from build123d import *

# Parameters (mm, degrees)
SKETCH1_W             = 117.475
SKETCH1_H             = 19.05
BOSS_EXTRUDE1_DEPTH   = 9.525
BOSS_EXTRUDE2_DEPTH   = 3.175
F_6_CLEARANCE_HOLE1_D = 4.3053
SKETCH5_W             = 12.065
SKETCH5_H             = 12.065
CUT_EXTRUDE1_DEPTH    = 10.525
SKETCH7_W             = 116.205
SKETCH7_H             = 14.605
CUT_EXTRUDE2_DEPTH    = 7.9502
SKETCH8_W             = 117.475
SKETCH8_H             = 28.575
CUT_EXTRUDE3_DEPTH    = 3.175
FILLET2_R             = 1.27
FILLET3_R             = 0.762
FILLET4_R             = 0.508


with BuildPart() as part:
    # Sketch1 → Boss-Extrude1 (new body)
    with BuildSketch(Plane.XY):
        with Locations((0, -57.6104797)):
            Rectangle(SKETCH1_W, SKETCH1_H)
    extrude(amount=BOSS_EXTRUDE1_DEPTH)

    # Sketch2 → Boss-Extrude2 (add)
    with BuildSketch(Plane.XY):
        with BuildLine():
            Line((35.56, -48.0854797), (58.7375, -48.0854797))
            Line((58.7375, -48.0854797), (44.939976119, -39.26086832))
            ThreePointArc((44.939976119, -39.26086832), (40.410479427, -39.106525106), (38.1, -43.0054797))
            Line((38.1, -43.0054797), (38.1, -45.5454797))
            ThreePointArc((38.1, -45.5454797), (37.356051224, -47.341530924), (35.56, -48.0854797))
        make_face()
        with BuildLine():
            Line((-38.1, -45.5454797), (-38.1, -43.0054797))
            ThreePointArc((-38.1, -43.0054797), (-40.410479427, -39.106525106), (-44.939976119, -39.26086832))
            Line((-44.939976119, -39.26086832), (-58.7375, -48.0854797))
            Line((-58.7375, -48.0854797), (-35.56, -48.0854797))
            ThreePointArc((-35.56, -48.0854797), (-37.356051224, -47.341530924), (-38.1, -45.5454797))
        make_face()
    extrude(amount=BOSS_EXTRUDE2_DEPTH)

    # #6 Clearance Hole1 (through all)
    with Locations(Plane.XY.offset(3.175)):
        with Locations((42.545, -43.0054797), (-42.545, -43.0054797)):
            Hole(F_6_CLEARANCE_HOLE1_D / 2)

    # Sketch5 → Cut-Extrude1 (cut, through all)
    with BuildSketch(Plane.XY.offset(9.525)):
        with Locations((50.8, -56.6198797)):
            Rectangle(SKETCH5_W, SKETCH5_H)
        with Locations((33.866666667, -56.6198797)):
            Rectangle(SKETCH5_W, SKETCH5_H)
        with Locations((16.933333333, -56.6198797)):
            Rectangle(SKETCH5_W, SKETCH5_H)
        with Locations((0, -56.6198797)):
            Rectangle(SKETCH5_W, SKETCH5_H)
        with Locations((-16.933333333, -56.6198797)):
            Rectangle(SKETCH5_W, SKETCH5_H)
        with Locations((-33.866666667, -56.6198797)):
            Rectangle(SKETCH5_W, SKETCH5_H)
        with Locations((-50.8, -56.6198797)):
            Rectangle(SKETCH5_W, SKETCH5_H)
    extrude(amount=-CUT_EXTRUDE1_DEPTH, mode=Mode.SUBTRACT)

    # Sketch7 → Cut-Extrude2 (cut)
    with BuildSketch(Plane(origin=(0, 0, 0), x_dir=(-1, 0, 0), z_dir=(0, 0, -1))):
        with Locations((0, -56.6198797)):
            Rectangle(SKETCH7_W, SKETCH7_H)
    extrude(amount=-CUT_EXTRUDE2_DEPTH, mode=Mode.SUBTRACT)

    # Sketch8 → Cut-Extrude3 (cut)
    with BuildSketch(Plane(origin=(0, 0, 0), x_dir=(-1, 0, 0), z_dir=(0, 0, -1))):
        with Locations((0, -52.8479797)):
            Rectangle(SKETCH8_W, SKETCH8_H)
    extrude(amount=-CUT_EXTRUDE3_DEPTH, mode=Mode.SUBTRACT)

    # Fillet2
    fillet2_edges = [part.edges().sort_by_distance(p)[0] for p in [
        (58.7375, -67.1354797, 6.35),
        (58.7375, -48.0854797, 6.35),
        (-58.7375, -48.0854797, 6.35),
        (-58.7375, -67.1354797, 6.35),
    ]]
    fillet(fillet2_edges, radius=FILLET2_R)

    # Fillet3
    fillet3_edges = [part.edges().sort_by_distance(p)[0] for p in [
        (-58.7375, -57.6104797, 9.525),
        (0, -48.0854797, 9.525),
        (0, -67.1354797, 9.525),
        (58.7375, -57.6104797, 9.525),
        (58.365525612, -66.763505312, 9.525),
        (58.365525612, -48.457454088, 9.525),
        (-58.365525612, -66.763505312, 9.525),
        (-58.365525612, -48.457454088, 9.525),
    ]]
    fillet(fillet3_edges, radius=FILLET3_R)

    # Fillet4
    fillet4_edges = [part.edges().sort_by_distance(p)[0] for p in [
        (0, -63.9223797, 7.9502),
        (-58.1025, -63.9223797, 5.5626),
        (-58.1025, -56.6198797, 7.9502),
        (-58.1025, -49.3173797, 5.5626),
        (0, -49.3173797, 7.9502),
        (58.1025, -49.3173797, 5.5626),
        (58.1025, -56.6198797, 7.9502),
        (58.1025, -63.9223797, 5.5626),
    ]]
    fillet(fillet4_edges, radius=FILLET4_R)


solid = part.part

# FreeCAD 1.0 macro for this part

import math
import FreeCAD as App
import Part
import Sketcher
Q = App.Units.Quantity


def edges_at(feature, points):
    """Names of the edges that pass closest to the given points."""
    edges = feature.Shape.Edges
    near = lambda p: min(range(len(edges)), key=lambda i: edges[i].distToShape(Part.Vertex(*p))[0])
    return sorted({f"Edge{near(p) + 1}" for p in points})

doc = App.newDocument("Part")
body = doc.addObject("PartDesign::Body", "Body")

# Sketch on XY plane
sketch1 = body.newObject("Sketcher::SketchObject", "Sketch")
sketch1.AttachmentSupport = (doc.getObject("XY_Plane"), [""])
sketch1.MapMode = "FlatFace"
sketch1.addGeometry([
    Part.LineSegment(App.Vector(-58.7375, -48.08548, 0), App.Vector(-58.7375, -67.13548, 0)),
    Part.LineSegment(App.Vector(-58.7375, -67.13548, 0), App.Vector(58.7375, -67.13548, 0)),
    Part.LineSegment(App.Vector(58.7375, -67.13548, 0), App.Vector(58.7375, -48.08548, 0)),
    Part.LineSegment(App.Vector(58.7375, -48.08548, 0), App.Vector(-58.7375, -48.08548, 0)),
], False)
sketch1.addConstraint([
    Sketcher.Constraint("Coincident", 0, 2, 1, 1),
    Sketcher.Constraint("Coincident", 1, 2, 2, 1),
    Sketcher.Constraint("Coincident", 2, 2, 3, 1),
    Sketcher.Constraint("Coincident", 3, 2, 0, 1),
    Sketcher.Constraint("Vertical", 0),
    Sketcher.Constraint("Horizontal", 1),
    Sketcher.Constraint("Vertical", 2),
    Sketcher.Constraint("Horizontal", 3),
    Sketcher.Constraint("DistanceY", 0, 2, 0, 1, Q("0.75 in")),
    Sketcher.Constraint("DistanceX", 1, 1, 1, 2, Q("4.625 in")),
    Sketcher.Constraint("DistanceX", 0, 2, -1, 1, Q("2.3125 in")),
    Sketcher.Constraint("DistanceY", 0, 2, -1, 1, 67.13548),
])
pad1 = body.newObject("PartDesign::Pad", "Pad")
pad1.Profile = sketch1
pad1.Length = Q("0.375 in")

# Sketch on XY plane
sketch2 = body.newObject("Sketcher::SketchObject", "Sketch001")
sketch2.AttachmentSupport = (doc.getObject("XY_Plane"), [""])
sketch2.MapMode = "FlatFace"
sketch2.addGeometry([
    Part.LineSegment(App.Vector(35.56, -48.08548, 0), App.Vector(58.7375, -48.08548, 0)),  # 0
    Part.LineSegment(App.Vector(58.7375, -48.08548, 0), App.Vector(44.939976, -39.260868, 0)),  # 1
    Part.ArcOfCircle(Part.Circle(App.Vector(42.545, -43.00548, 0), App.Vector(0, 0, 1), 4.445), math.radians(57.397858), math.radians(180)),  # 2
    Part.LineSegment(App.Vector(38.1, -43.00548, 0), App.Vector(38.1, -45.54548, 0)),  # 3
    Part.ArcOfCircle(Part.Circle(App.Vector(35.56, -45.54548, 0), App.Vector(0, 0, 1), 2.54), math.radians(-90), math.radians(0)),  # 4
    Part.LineSegment(App.Vector(-38.1, -45.54548, 0), App.Vector(-38.1, -43.00548, 0)),  # 5
    Part.ArcOfCircle(Part.Circle(App.Vector(-42.545, -43.00548, 0), App.Vector(0, 0, 1), 4.445), math.radians(0), math.radians(122.602142)),  # 6
    Part.LineSegment(App.Vector(-44.939976, -39.260868, 0), App.Vector(-58.7375, -48.08548, 0)),  # 7
    Part.LineSegment(App.Vector(-58.7375, -48.08548, 0), App.Vector(-35.56, -48.08548, 0)),  # 8
    Part.ArcOfCircle(Part.Circle(App.Vector(-35.56, -45.54548, 0), App.Vector(0, 0, 1), 2.54), math.radians(-180), math.radians(-90)),  # 9
], False)
sketch2.addConstraint([
    Sketcher.Constraint("Coincident", 0, 2, 1, 1),
    Sketcher.Constraint("Tangent", 1, 2, 2, 1),
    Sketcher.Constraint("Tangent", 2, 2, 3, 1),
    Sketcher.Constraint("Tangent", 3, 2, 4, 2),
    Sketcher.Constraint("Tangent", 4, 1, 0, 1),
    Sketcher.Constraint("Tangent", 5, 2, 6, 1),
    Sketcher.Constraint("Tangent", 6, 2, 7, 1),
    Sketcher.Constraint("Coincident", 7, 2, 8, 1),
    Sketcher.Constraint("Tangent", 8, 2, 9, 2),
    Sketcher.Constraint("Tangent", 9, 1, 5, 1),
    Sketcher.Constraint("Horizontal", 0),
    Sketcher.Constraint("Vertical", 3),
    Sketcher.Constraint("Vertical", 5),
    Sketcher.Constraint("Horizontal", 8),
    Sketcher.Constraint("Equal", 2, 6),
    Sketcher.Constraint("Equal", 4, 9),
    Sketcher.Constraint("Symmetric", 2, 3, 6, 3, -2),
    Sketcher.Constraint("Symmetric", 0, 2, 7, 2, -2),
    Sketcher.Constraint("Radius", 4, Q("0.1 in")),
    Sketcher.Constraint("DistanceY", 3, 2, 3, 1, Q("0.1 in")),
    Sketcher.Constraint("Radius", 2, Q("0.175 in")),
    Sketcher.Constraint("DistanceX", 5, 2, 2, 2, Q("3 in")),
    Sketcher.Constraint("DistanceX", 0, 1, 0, 2, Q("0.9125 in")),
    Sketcher.Constraint("DistanceY", 2, 3, -1, 1, 43.00548),
])
pad2 = body.newObject("PartDesign::Pad", "Pad001")
pad2.Profile = sketch2
pad2.Length = Q("0.125 in")

# Sketch on XY plane
sketch3 = body.newObject("Sketcher::SketchObject", "Sketch002")
sketch3.AttachmentSupport = (doc.getObject("XY_Plane"), [""])
sketch3.MapMode = "FlatFace"
sketch3.AttachmentOffset = App.Placement(App.Vector(0, 0, 0.125 * 25.4), App.Rotation())
sketch3.addGeometry([
    Part.Circle(App.Vector(42.545, -43.00548, 0), App.Vector(0, 0, 1), 2.15265),
    Part.Circle(App.Vector(-42.545, -43.00548, 0), App.Vector(0, 0, 1), 2.15265),
], False)
sketch3.addConstraint([
    Sketcher.Constraint("Equal", 0, 1),
    Sketcher.Constraint("Symmetric", 0, 3, 1, 3, -2),
    Sketcher.Constraint("Diameter", 0, Q("0.1695 in")),
    Sketcher.Constraint("DistanceX", 1, 3, 0, 3, Q("3.35 in")),
    Sketcher.Constraint("DistanceY", 0, 3, -1, 1, 43.00548),
])
doc.recompute()
hole = body.newObject("PartDesign::Hole", "Hole")
hole.Profile = sketch3
hole.ThreadType = "None"
hole.Diameter = Q("0.1695 in")
hole.DepthType = "ThroughAll"

# Sketch on XY plane
sketch4 = body.newObject("Sketcher::SketchObject", "Sketch003")
sketch4.AttachmentSupport = (doc.getObject("XY_Plane"), [""])
sketch4.MapMode = "FlatFace"
sketch4.AttachmentOffset = App.Placement(App.Vector(0, 0, 0.375 * 25.4), App.Rotation())
sketch4.addGeometry([
    Part.LineSegment(App.Vector(44.7675, -50.58738, 0), App.Vector(44.7675, -62.65238, 0)),  # 0
    Part.LineSegment(App.Vector(44.7675, -62.65238, 0), App.Vector(56.8325, -62.65238, 0)),  # 1
    Part.LineSegment(App.Vector(56.8325, -62.65238, 0), App.Vector(56.8325, -50.58738, 0)),  # 2
    Part.LineSegment(App.Vector(56.8325, -50.58738, 0), App.Vector(44.7675, -50.58738, 0)),  # 3
    Part.LineSegment(App.Vector(27.834167, -50.58738, 0), App.Vector(27.834167, -62.65238, 0)),  # 4
    Part.LineSegment(App.Vector(27.834167, -62.65238, 0), App.Vector(39.899167, -62.65238, 0)),  # 5
    Part.LineSegment(App.Vector(39.899167, -62.65238, 0), App.Vector(39.899167, -50.58738, 0)),  # 6
    Part.LineSegment(App.Vector(39.899167, -50.58738, 0), App.Vector(27.834167, -50.58738, 0)),  # 7
    Part.LineSegment(App.Vector(10.900833, -50.58738, 0), App.Vector(10.900833, -62.65238, 0)),  # 8
    Part.LineSegment(App.Vector(10.900833, -62.65238, 0), App.Vector(22.965833, -62.65238, 0)),  # 9
    Part.LineSegment(App.Vector(22.965833, -62.65238, 0), App.Vector(22.965833, -50.58738, 0)),  # 10
    Part.LineSegment(App.Vector(22.965833, -50.58738, 0), App.Vector(10.900833, -50.58738, 0)),  # 11
    Part.LineSegment(App.Vector(-6.0325, -50.58738, 0), App.Vector(-6.0325, -62.65238, 0)),  # 12
    Part.LineSegment(App.Vector(-6.0325, -62.65238, 0), App.Vector(6.0325, -62.65238, 0)),  # 13
    Part.LineSegment(App.Vector(6.0325, -62.65238, 0), App.Vector(6.0325, -50.58738, 0)),  # 14
    Part.LineSegment(App.Vector(6.0325, -50.58738, 0), App.Vector(-6.0325, -50.58738, 0)),  # 15
    Part.LineSegment(App.Vector(-22.965833, -50.58738, 0), App.Vector(-22.965833, -62.65238, 0)),  # 16
    Part.LineSegment(App.Vector(-22.965833, -62.65238, 0), App.Vector(-10.900833, -62.65238, 0)),  # 17
    Part.LineSegment(App.Vector(-10.900833, -62.65238, 0), App.Vector(-10.900833, -50.58738, 0)),  # 18
    Part.LineSegment(App.Vector(-10.900833, -50.58738, 0), App.Vector(-22.965833, -50.58738, 0)),  # 19
    Part.LineSegment(App.Vector(-39.899167, -50.58738, 0), App.Vector(-39.899167, -62.65238, 0)),  # 20
    Part.LineSegment(App.Vector(-39.899167, -62.65238, 0), App.Vector(-27.834167, -62.65238, 0)),  # 21
    Part.LineSegment(App.Vector(-27.834167, -62.65238, 0), App.Vector(-27.834167, -50.58738, 0)),  # 22
    Part.LineSegment(App.Vector(-27.834167, -50.58738, 0), App.Vector(-39.899167, -50.58738, 0)),  # 23
    Part.LineSegment(App.Vector(-56.8325, -50.58738, 0), App.Vector(-56.8325, -62.65238, 0)),  # 24
    Part.LineSegment(App.Vector(-56.8325, -62.65238, 0), App.Vector(-44.7675, -62.65238, 0)),  # 25
    Part.LineSegment(App.Vector(-44.7675, -62.65238, 0), App.Vector(-44.7675, -50.58738, 0)),  # 26
    Part.LineSegment(App.Vector(-44.7675, -50.58738, 0), App.Vector(-56.8325, -50.58738, 0)),  # 27
], False)
sketch4.addConstraint([
    Sketcher.Constraint("Coincident", 0, 2, 1, 1),
    Sketcher.Constraint("Coincident", 1, 2, 2, 1),
    Sketcher.Constraint("Coincident", 2, 2, 3, 1),
    Sketcher.Constraint("Coincident", 3, 2, 0, 1),
    Sketcher.Constraint("Coincident", 4, 2, 5, 1),
    Sketcher.Constraint("Coincident", 5, 2, 6, 1),
    Sketcher.Constraint("Coincident", 6, 2, 7, 1),
    Sketcher.Constraint("Coincident", 7, 2, 4, 1),
    Sketcher.Constraint("Coincident", 8, 2, 9, 1),
    Sketcher.Constraint("Coincident", 9, 2, 10, 1),
    Sketcher.Constraint("Coincident", 10, 2, 11, 1),
    Sketcher.Constraint("Coincident", 11, 2, 8, 1),
    Sketcher.Constraint("Coincident", 12, 2, 13, 1),
    Sketcher.Constraint("Coincident", 13, 2, 14, 1),
    Sketcher.Constraint("Coincident", 14, 2, 15, 1),
    Sketcher.Constraint("Coincident", 15, 2, 12, 1),
    Sketcher.Constraint("Coincident", 16, 2, 17, 1),
    Sketcher.Constraint("Coincident", 17, 2, 18, 1),
    Sketcher.Constraint("Coincident", 18, 2, 19, 1),
    Sketcher.Constraint("Coincident", 19, 2, 16, 1),
    Sketcher.Constraint("Coincident", 20, 2, 21, 1),
    Sketcher.Constraint("Coincident", 21, 2, 22, 1),
    Sketcher.Constraint("Coincident", 22, 2, 23, 1),
    Sketcher.Constraint("Coincident", 23, 2, 20, 1),
    Sketcher.Constraint("Coincident", 24, 2, 25, 1),
    Sketcher.Constraint("Coincident", 25, 2, 26, 1),
    Sketcher.Constraint("Coincident", 26, 2, 27, 1),
    Sketcher.Constraint("Coincident", 27, 2, 24, 1),
    Sketcher.Constraint("Vertical", 0),
    Sketcher.Constraint("Horizontal", 1),
    Sketcher.Constraint("Vertical", 2),
    Sketcher.Constraint("Horizontal", 3),
    Sketcher.Constraint("Vertical", 4),
    Sketcher.Constraint("Horizontal", 5),
    Sketcher.Constraint("Vertical", 6),
    Sketcher.Constraint("Horizontal", 7),
    Sketcher.Constraint("Vertical", 8),
    Sketcher.Constraint("Horizontal", 9),
    Sketcher.Constraint("Vertical", 10),
    Sketcher.Constraint("Horizontal", 11),
    Sketcher.Constraint("Vertical", 12),
    Sketcher.Constraint("Horizontal", 13),
    Sketcher.Constraint("Vertical", 14),
    Sketcher.Constraint("Horizontal", 15),
    Sketcher.Constraint("Vertical", 16),
    Sketcher.Constraint("Horizontal", 17),
    Sketcher.Constraint("Vertical", 18),
    Sketcher.Constraint("Horizontal", 19),
    Sketcher.Constraint("Vertical", 20),
    Sketcher.Constraint("Horizontal", 21),
    Sketcher.Constraint("Vertical", 22),
    Sketcher.Constraint("Horizontal", 23),
    Sketcher.Constraint("Vertical", 24),
    Sketcher.Constraint("Horizontal", 25),
    Sketcher.Constraint("Vertical", 26),
    Sketcher.Constraint("Horizontal", 27),
    Sketcher.Constraint("Symmetric", 9, 2, 16, 2, -2),
    Sketcher.Constraint("Symmetric", 11, 2, 18, 2, -2),
    Sketcher.Constraint("Symmetric", 5, 2, 20, 2, -2),
    Sketcher.Constraint("Symmetric", 7, 2, 22, 2, -2),
    Sketcher.Constraint("Symmetric", 1, 2, 24, 2, -2),
    Sketcher.Constraint("Symmetric", 3, 2, 26, 2, -2),
    Sketcher.Constraint("Horizontal", 1, 2, 4, 2),
    Sketcher.Constraint("Horizontal", 3, 2, 6, 2),
    Sketcher.Constraint("Horizontal", 5, 2, 8, 2),
    Sketcher.Constraint("Horizontal", 7, 2, 10, 2),
    Sketcher.Constraint("Horizontal", 9, 2, 12, 2),
    Sketcher.Constraint("Horizontal", 11, 2, 14, 2),
    Sketcher.Constraint("Equal", 3, 5),
    Sketcher.Constraint("Equal", 7, 9),
    Sketcher.Constraint("Equal", 11, 13),
    Sketcher.Constraint("Equal", 27, 0),
    Sketcher.Constraint("DistanceX", 1, 1, 1, 2, Q("0.475 in")),
    Sketcher.Constraint("DistanceX", -1, 1, 0, 2, Q("1.7625 in")),
    Sketcher.Constraint("DistanceX", 12, 2, -1, 1, Q("0.2375 in")),
    Sketcher.Constraint("DistanceY", 0, 2, -1, 1, 62.65238),
    Sketcher.Constraint("DistanceX", -1, 1, 4, 2, 27.834167),
    Sketcher.Constraint("DistanceX", -1, 1, 8, 2, 10.900833),
])
pocket1 = body.newObject("PartDesign::Pocket", "Pocket")
pocket1.Profile = sketch4
pocket1.Type = "ThroughAll"

# Sketch on XY plane
sketch5 = body.newObject("Sketcher::SketchObject", "Sketch004")
sketch5.AttachmentSupport = (doc.getObject("XY_Plane"), [""])
sketch5.MapMode = "FlatFace"
sketch5.addGeometry([
    Part.LineSegment(App.Vector(58.1025, -49.31738, 0), App.Vector(58.1025, -63.92238, 0)),
    Part.LineSegment(App.Vector(58.1025, -63.92238, 0), App.Vector(-58.1025, -63.92238, 0)),
    Part.LineSegment(App.Vector(-58.1025, -63.92238, 0), App.Vector(-58.1025, -49.31738, 0)),
    Part.LineSegment(App.Vector(-58.1025, -49.31738, 0), App.Vector(58.1025, -49.31738, 0)),
], False)
sketch5.addConstraint([
    Sketcher.Constraint("Coincident", 0, 2, 1, 1),
    Sketcher.Constraint("Coincident", 1, 2, 2, 1),
    Sketcher.Constraint("Coincident", 2, 2, 3, 1),
    Sketcher.Constraint("Coincident", 3, 2, 0, 1),
    Sketcher.Constraint("Vertical", 0),
    Sketcher.Constraint("Horizontal", 1),
    Sketcher.Constraint("Vertical", 2),
    Sketcher.Constraint("Horizontal", 3),
    Sketcher.Constraint("DistanceX", 1, 2, 1, 1, Q("4.575 in")),
    Sketcher.Constraint("DistanceY", 0, 2, 0, 1, Q("0.575 in")),
    Sketcher.Constraint("DistanceX", -1, 1, 0, 2, Q("2.2875 in")),
    Sketcher.Constraint("DistanceY", 0, 2, -1, 1, 63.92238),
])
pocket2 = body.newObject("PartDesign::Pocket", "Pocket001")
pocket2.Profile = sketch5
pocket2.Length = Q("0.313 in")
pocket2.Reversed = True

# Sketch on XY plane
sketch6 = body.newObject("Sketcher::SketchObject", "Sketch005")
sketch6.AttachmentSupport = (doc.getObject("XY_Plane"), [""])
sketch6.MapMode = "FlatFace"
sketch6.addGeometry([
    Part.LineSegment(App.Vector(58.7375, -38.56048, 0), App.Vector(58.7375, -67.13548, 0)),
    Part.LineSegment(App.Vector(58.7375, -67.13548, 0), App.Vector(-58.7375, -67.13548, 0)),
    Part.LineSegment(App.Vector(-58.7375, -67.13548, 0), App.Vector(-58.7375, -38.56048, 0)),
    Part.LineSegment(App.Vector(-58.7375, -38.56048, 0), App.Vector(58.7375, -38.56048, 0)),
], False)
sketch6.addConstraint([
    Sketcher.Constraint("Coincident", 0, 2, 1, 1),
    Sketcher.Constraint("Coincident", 1, 2, 2, 1),
    Sketcher.Constraint("Coincident", 2, 2, 3, 1),
    Sketcher.Constraint("Coincident", 3, 2, 0, 1),
    Sketcher.Constraint("Vertical", 0),
    Sketcher.Constraint("Horizontal", 1),
    Sketcher.Constraint("Vertical", 2),
    Sketcher.Constraint("Horizontal", 3),
    Sketcher.Constraint("DistanceX", 1, 2, 1, 1, Q("4.625 in")),
    Sketcher.Constraint("DistanceY", 0, 2, 0, 1, Q("1.125 in")),
    Sketcher.Constraint("DistanceX", -1, 1, 0, 2, Q("2.3125 in")),
    Sketcher.Constraint("DistanceY", 0, 2, -1, 1, 67.13548),
])
pocket3 = body.newObject("PartDesign::Pocket", "Pocket002")
pocket3.Profile = sketch6
pocket3.Length = Q("0.125 in")
pocket3.Reversed = True
doc.recompute()

fillet = body.newObject("PartDesign::Fillet", "Fillet")
fillet.Base = (pocket3, edges_at(pocket3, [
    (58.737, -67.135, 6.35),
    (58.737, -48.085, 6.35),
    (-58.737, -48.085, 6.35),
    (-58.737, -67.135, 6.35),
]))
fillet.Radius = Q("0.05 in")
doc.recompute()

fillet2 = body.newObject("PartDesign::Fillet", "Fillet001")
fillet2.Base = (fillet, edges_at(fillet, [
    (-58.737, -57.61, 9.525),
    (0, -48.085, 9.525),
    (0, -67.135, 9.525),
    (58.737, -57.61, 9.525),
    (58.366, -66.764, 9.525),
    (58.366, -48.457, 9.525),
    (-58.366, -66.764, 9.525),
    (-58.366, -48.457, 9.525),
]))
fillet2.Radius = Q("0.03 in")
doc.recompute()

fillet3 = body.newObject("PartDesign::Fillet", "Fillet002")
fillet3.Base = (fillet2, edges_at(fillet2, [
    (0, -63.922, 7.95),
    (-58.102, -63.922, 5.563),
    (-58.102, -56.62, 7.95),
    (-58.102, -49.317, 5.563),
    (0, -49.317, 7.95),
    (58.102, -49.317, 5.563),
    (58.102, -56.62, 7.95),
    (58.102, -63.922, 5.563),
]))
fillet3.Radius = Q("0.02 in")

doc.recompute()
